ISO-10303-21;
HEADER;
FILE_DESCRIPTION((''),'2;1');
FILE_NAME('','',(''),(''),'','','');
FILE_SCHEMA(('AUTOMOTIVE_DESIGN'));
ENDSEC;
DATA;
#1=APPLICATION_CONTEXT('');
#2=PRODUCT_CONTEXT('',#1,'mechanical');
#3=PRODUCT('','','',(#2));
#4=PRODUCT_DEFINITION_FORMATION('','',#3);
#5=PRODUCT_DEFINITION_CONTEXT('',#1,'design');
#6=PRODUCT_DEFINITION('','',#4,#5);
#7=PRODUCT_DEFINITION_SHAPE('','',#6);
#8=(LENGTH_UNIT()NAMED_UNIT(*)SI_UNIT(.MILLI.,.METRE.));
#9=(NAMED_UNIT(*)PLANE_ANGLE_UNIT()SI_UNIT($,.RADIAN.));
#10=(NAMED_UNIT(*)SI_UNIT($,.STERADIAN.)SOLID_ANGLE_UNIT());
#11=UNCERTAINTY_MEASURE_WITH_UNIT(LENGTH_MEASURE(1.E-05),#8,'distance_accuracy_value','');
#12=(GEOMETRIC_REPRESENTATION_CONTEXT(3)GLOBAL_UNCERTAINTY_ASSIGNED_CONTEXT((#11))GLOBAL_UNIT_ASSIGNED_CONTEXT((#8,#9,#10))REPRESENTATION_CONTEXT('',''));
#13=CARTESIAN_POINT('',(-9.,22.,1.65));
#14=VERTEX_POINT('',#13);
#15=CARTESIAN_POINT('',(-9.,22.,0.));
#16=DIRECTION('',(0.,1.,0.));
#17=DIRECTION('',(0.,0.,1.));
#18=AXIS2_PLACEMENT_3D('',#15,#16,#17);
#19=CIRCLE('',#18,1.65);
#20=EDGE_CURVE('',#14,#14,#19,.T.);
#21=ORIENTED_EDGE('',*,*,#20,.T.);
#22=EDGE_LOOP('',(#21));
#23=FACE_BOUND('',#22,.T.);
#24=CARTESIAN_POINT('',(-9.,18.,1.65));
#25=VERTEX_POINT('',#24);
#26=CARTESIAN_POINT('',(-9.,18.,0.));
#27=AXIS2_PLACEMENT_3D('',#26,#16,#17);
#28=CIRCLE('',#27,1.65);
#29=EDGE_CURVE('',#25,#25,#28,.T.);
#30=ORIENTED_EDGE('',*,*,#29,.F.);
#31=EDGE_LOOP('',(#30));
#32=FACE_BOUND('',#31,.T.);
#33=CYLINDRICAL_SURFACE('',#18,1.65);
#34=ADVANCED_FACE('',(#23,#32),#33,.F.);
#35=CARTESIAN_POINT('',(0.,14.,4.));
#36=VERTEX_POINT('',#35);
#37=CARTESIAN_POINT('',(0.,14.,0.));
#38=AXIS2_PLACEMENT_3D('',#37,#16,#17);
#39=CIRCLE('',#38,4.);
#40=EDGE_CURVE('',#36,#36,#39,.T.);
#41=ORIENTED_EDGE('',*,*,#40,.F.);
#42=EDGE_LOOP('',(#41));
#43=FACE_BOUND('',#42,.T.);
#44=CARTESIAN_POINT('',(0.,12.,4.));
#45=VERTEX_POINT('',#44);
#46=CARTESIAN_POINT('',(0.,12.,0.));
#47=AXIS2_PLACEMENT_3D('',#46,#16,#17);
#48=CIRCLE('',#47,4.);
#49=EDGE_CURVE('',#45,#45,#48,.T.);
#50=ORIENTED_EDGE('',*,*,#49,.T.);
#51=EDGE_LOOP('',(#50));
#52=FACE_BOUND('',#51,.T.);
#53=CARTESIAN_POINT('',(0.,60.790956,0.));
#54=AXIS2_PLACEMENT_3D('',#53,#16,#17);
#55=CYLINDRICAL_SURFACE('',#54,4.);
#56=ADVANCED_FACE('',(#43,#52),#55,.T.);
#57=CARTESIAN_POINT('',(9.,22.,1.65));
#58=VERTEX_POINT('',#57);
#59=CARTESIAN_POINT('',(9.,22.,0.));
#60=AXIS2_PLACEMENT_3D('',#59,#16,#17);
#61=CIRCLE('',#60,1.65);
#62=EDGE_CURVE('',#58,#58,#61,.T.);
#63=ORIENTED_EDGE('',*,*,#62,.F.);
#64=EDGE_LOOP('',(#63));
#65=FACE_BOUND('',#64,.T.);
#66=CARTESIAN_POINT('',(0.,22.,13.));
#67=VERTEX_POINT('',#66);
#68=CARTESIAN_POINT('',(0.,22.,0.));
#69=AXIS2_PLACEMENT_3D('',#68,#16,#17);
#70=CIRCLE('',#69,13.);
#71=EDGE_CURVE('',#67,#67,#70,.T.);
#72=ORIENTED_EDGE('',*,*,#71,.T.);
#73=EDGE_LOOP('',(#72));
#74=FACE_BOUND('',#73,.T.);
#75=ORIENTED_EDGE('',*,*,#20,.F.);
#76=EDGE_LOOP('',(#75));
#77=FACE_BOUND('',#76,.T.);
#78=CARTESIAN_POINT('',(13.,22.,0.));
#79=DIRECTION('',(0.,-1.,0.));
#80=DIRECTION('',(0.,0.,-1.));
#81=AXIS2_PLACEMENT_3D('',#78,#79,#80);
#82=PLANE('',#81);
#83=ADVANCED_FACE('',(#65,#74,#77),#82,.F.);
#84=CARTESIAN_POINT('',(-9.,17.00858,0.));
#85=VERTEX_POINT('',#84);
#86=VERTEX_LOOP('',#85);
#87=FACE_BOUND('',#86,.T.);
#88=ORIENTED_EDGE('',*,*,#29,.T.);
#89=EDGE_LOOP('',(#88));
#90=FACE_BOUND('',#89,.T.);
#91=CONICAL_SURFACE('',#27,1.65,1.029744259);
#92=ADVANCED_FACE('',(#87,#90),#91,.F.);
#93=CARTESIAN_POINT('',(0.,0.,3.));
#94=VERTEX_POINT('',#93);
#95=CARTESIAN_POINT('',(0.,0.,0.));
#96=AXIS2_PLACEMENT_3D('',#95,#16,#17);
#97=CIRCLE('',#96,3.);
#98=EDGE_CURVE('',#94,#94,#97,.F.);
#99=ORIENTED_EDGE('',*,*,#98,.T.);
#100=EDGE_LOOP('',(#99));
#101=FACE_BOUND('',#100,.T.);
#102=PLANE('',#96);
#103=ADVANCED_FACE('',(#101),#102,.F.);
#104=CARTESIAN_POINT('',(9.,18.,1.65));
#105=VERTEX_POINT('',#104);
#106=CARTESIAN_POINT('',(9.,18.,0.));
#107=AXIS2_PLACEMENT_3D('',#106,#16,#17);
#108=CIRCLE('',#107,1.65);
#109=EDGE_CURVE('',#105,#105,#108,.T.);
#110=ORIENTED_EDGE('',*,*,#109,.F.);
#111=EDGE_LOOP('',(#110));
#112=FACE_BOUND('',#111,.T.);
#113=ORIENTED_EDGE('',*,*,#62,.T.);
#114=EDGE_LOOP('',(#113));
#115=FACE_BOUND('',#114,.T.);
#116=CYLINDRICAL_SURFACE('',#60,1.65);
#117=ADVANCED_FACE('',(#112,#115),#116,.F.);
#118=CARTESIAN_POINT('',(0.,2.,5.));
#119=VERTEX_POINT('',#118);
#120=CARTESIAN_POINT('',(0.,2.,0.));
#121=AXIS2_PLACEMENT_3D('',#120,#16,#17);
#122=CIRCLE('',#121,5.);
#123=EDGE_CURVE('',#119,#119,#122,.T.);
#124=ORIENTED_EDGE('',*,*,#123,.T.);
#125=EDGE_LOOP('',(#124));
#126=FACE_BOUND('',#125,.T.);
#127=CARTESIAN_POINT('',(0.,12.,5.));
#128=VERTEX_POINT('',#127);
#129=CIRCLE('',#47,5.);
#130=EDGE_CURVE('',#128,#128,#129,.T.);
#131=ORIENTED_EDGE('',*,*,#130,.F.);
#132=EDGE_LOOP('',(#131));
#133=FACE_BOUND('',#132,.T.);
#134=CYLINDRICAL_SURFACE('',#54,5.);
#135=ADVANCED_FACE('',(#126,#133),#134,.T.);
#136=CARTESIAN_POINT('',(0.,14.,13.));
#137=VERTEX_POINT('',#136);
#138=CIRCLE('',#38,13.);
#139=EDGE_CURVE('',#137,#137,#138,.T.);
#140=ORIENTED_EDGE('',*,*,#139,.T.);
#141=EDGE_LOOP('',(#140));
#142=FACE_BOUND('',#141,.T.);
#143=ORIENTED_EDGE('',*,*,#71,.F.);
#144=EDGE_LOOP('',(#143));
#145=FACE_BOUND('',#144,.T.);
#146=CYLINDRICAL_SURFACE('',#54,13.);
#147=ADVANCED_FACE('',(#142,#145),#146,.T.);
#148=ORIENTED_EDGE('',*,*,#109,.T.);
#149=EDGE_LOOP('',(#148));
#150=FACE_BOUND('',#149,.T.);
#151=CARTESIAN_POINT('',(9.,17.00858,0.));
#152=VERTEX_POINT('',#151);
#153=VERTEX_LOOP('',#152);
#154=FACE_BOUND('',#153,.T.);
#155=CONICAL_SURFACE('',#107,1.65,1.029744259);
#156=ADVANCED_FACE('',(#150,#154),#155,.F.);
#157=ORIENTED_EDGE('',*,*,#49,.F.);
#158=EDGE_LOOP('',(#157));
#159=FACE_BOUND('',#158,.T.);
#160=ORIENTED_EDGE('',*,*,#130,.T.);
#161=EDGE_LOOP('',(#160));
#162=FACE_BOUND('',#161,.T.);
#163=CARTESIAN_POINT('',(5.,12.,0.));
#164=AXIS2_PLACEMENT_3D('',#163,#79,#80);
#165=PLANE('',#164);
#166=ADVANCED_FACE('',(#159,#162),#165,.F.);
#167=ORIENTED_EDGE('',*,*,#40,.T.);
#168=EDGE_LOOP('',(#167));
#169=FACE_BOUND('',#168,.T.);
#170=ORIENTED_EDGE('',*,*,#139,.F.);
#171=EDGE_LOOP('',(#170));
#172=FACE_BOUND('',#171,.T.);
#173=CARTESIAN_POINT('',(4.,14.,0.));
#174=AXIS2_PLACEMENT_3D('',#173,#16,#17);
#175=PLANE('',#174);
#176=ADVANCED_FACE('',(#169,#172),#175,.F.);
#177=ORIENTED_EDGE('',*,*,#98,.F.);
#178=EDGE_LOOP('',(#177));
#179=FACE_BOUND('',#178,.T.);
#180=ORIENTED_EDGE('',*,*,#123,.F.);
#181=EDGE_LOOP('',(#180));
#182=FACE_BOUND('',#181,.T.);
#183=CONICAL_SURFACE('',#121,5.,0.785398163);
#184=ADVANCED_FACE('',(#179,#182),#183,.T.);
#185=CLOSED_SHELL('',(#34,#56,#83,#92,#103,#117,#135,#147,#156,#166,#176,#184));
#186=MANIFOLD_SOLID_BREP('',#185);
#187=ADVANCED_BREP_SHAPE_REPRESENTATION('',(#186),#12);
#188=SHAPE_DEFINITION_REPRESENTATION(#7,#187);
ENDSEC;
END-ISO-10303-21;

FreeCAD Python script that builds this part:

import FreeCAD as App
import Part
import Sketcher

V = App.Vector
Q = App.Units.Quantity


def edges_at(feature, points):
    """Names of the edges that pass closest to the given points."""
    edges = feature.Shape.Edges
    near = lambda p: min(range(len(edges)), key=lambda i: edges[i].distToShape(Part.Vertex(*p))[0])
    return sorted({f"Edge{near(p) + 1}" for p in points})

doc = App.newDocument("Part")
body = doc.addObject("PartDesign::Body", "Body")

# Sketch on XY plane
sketch1 = doc.addObject("Sketcher::SketchObject", "Sketch")
body.addObject(sketch1)
sketch1.AttachmentSupport = (doc.XY_Plane, [""])
sketch1.MapMode = "FlatFace"
sketch1.addGeometry([
    Part.LineSegment(V(0, 0, 0), V(5, 0, 0)),  # 0
    Part.LineSegment(V(5, 0, 0), V(5, 12, 0)),  # 1
    Part.LineSegment(V(5, 12, 0), V(4, 12, 0)),  # 2
    Part.LineSegment(V(4, 12, 0), V(4, 14, 0)),  # 3
    Part.LineSegment(V(4, 14, 0), V(13, 14, 0)),  # 4
    Part.LineSegment(V(13, 14, 0), V(13, 22, 0)),  # 5
    Part.LineSegment(V(13, 22, 0), V(0, 22, 0)),  # 6
    Part.LineSegment(V(0, 22, 0), V(0, 0, 0)),  # 7
], False)
sketch1.addConstraint([
    Sketcher.Constraint("Coincident", 0, 2, 1, 1),
    Sketcher.Constraint("Coincident", 1, 2, 2, 1),
    Sketcher.Constraint("Coincident", 2, 2, 3, 1),
    Sketcher.Constraint("Coincident", 3, 2, 4, 1),
    Sketcher.Constraint("Coincident", 4, 2, 5, 1),
    Sketcher.Constraint("Coincident", 5, 2, 6, 1),
    Sketcher.Constraint("Coincident", 6, 2, 7, 1),
    Sketcher.Constraint("Coincident", 7, 2, 0, 1),
    Sketcher.Constraint("Horizontal", 0),
    Sketcher.Constraint("Vertical", 1),
    Sketcher.Constraint("Horizontal", 2),
    Sketcher.Constraint("Vertical", 3),
    Sketcher.Constraint("Horizontal", 4),
    Sketcher.Constraint("Vertical", 5),
    Sketcher.Constraint("Horizontal", 6),
    Sketcher.Constraint("Vertical", 7),
    Sketcher.Constraint("Coincident", 7, 2, -1, 1),
    Sketcher.Constraint("DistanceX", 0, 1, 0, 2, Q("5 mm")),
    Sketcher.Constraint("DistanceX", 2, 2, 2, 1, Q("1 mm")),
    Sketcher.Constraint("DistanceX", 4, 1, 4, 2, Q("9 mm")),
    Sketcher.Constraint("DistanceY", 1, 1, 1, 2, Q("12 mm")),
    Sketcher.Constraint("DistanceY", 3, 1, 3, 2, Q("2 mm")),
    Sketcher.Constraint("DistanceY", 5, 1, 5, 2, Q("8 mm")),
])
revolution = doc.addObject("PartDesign::Revolution", "Revolution")
body.addObject(revolution)
revolution.Profile = sketch1
revolution.ReferenceAxis = (sketch1, ["V_Axis"])
revolution.Angle = 360
doc.recompute()

chamfer = doc.addObject("PartDesign::Chamfer", "Chamfer")
body.addObject(chamfer)
chamfer.Base = (revolution, edges_at(revolution, [(0, 0, -5)]))
chamfer.Size = 2

# Sketch on XZ plane
sketch2 = doc.addObject("Sketcher::SketchObject", "Sketch001")
body.addObject(sketch2)
sketch2.AttachmentSupport = (doc.XZ_Plane, [""])
sketch2.MapMode = "FlatFace"
sketch2.AttachmentOffset = App.Placement(V(0, 0, -22), App.Rotation())
sketch2.addGeometry([
    Part.Circle(V(-9, 0, 0), V(0, 0, 1), 1.6),
    Part.Circle(V(9, 0, 0), V(0, 0, 1), 1.6),
], False)
sketch2.addConstraint([
    Sketcher.Constraint("Equal", 0, 1),
    Sketcher.Constraint("Symmetric", 0, 3, 1, 3, -1, 1),
    Sketcher.Constraint("PointOnObject", 0, 3, -1),
    Sketcher.Constraint("Diameter", 0, Q("3.3 mm")),
    Sketcher.Constraint("DistanceX", 0, 3, -1, 1, Q("9 mm")),
])
doc.recompute()
hole = doc.addObject("PartDesign::Hole", "Hole")
body.addObject(hole)
hole.Profile = sketch2
hole.ThreadType = "None"
hole.Diameter = 3.3
hole.DepthType = "Dimension"
hole.Depth = 4
hole.DrillPoint = "Angled"
hole.DrillPointAngle = 118
hole.Reversed = True

doc.recompute()
